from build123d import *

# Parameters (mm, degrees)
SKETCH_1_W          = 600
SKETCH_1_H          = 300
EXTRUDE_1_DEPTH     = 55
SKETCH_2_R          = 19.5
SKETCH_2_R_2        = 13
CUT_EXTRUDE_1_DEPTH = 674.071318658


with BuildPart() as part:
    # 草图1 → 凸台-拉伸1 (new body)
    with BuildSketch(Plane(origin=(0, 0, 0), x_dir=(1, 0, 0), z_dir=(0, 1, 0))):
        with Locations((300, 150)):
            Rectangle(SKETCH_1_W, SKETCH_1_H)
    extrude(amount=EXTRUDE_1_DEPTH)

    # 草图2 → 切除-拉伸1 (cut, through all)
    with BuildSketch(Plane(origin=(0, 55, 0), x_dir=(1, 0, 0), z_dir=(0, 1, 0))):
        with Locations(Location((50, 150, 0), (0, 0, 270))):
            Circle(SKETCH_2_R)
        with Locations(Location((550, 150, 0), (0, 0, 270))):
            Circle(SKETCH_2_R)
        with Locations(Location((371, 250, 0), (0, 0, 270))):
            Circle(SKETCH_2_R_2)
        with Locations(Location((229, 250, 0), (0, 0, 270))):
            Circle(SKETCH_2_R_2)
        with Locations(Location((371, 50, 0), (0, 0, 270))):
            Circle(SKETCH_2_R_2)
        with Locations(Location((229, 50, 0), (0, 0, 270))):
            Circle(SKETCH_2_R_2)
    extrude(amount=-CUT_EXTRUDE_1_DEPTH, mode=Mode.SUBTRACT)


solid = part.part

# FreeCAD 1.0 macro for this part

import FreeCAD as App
import Part
import Sketcher

V = App.Vector


def add_polygon(sketch, points):
    """Adds a closed chain of lines whose ends are joined by coincident constraints."""
    first, n = sketch.GeometryCount, len(points)
    for a, b in zip(points, points[1:] + points[:1]):
        sketch.addGeometry(Part.LineSegment(App.Vector(*a, 0), App.Vector(*b, 0)), False)
    for i in range(n):
        sketch.addConstraint(Sketcher.Constraint("Coincident", first + i, 2, first + (i + 1) % n, 1))

doc = App.newDocument("Part")
params = doc.addObject("Spreadsheet::Sheet", "Params")
for row, (alias, value) in enumerate([
    ("sketch1_width", "600 mm"),
    ("sketch1_height", "300 mm"),
    ("pad1_length", "55 mm"),
    ("sketch2_diameter", "39 mm"),
    ("sketch2_diameter2", "26 mm"),
], start=1):
    params.set(f"A{row}", alias)
    params.set(f"B{row}", "=" + value)
    params.setAlias(f"B{row}", alias)

body = doc.addObject("PartDesign::Body", "Body")

sketch1 = body.newObject("Sketcher::SketchObject", "Sketch")
sketch1.AttachmentSupport = (doc.getObject("XZ_Plane"), [""])
sketch1.MapMode = "FlatFace"
add_polygon(sketch1, [(0, -300), (0, 0), (600, 0), (600, -300)])
sketch1.addConstraint([
    Sketcher.Constraint("Vertical", 0),
    Sketcher.Constraint("Horizontal", 1),
    Sketcher.Constraint("Vertical", 2),
    Sketcher.Constraint("Horizontal", 3),
    Sketcher.Constraint("Coincident", 0, 2, -1, 1),
    Sketcher.Constraint("DistanceX", 1, 1, 1, 2, 600.0),
    Sketcher.Constraint("DistanceY", 0, 1, 0, 2, 300.0),
])
sketch1.setExpression("Constraints[9]", "Params.sketch1_width")
sketch1.setExpression("Constraints[10]", "Params.sketch1_height")
pad1 = body.newObject("PartDesign::Pad", "Pad")
pad1.Profile = sketch1
pad1.setExpression("Length", "Params.pad1_length")
pad1.Reversed = True

sketch2 = body.newObject("Sketcher::SketchObject", "Sketch001")
sketch2.AttachmentSupport = (doc.getObject("XZ_Plane"), [""])
sketch2.MapMode = "FlatFace"
sketch2.AttachmentOffset = App.Placement(V(0, 0, -55), App.Rotation())
sketch2.addGeometry([
    Part.Circle(V(50, -150, 0), V(0, 0, 1), 20),
    Part.Circle(V(550, -150, 0), V(0, 0, 1), 20),
    Part.Circle(V(371, -250, 0), V(0, 0, 1), 13),
    Part.Circle(V(229, -250, 0), V(0, 0, 1), 13),
    Part.Circle(V(371, -50, 0), V(0, 0, 1), 13),
    Part.Circle(V(229, -50, 0), V(0, 0, 1), 13),
], False)
sketch2.addConstraint([
    Sketcher.Constraint("Equal", 0, 1),
    Sketcher.Constraint("Equal", 2, 3),
    Sketcher.Constraint("Equal", 3, 4),
    Sketcher.Constraint("Equal", 4, 5),
    Sketcher.Constraint("Horizontal", 0, 3, 1, 3),
    Sketcher.Constraint("Horizontal", 2, 3, 3, 3),
    Sketcher.Constraint("Horizontal", 4, 3, 5, 3),
    Sketcher.Constraint("Vertical", 2, 3, 4, 3),
    Sketcher.Constraint("Vertical", 3, 3, 5, 3),
    Sketcher.Constraint("Diameter", 0, 39.0),
    Sketcher.Constraint("Diameter", 2, 26.0),
    Sketcher.Constraint("DistanceX", -1, 1, 0, 3, 50.0),
    Sketcher.Constraint("DistanceY", 0, 3, -1, 1, 150.0),
    Sketcher.Constraint("DistanceX", -1, 1, 1, 3, 550.0),
    Sketcher.Constraint("DistanceX", -1, 1, 2, 3, 371.0),
    Sketcher.Constraint("DistanceY", 2, 3, -1, 1, 250.0),
    Sketcher.Constraint("DistanceX", -1, 1, 3, 3, 229.0),
    Sketcher.Constraint("DistanceY", 4, 3, -1, 1, 50.0),
])
sketch2.setExpression("Constraints[9]", "Params.sketch2_diameter")
sketch2.setExpression("Constraints[10]", "Params.sketch2_diameter2")
pocket1 = body.newObject("PartDesign::Pocket", "Pocket")
pocket1.Profile = sketch2
pocket1.Type = "ThroughAll"
pocket1.Reversed = True

doc.recompute()
